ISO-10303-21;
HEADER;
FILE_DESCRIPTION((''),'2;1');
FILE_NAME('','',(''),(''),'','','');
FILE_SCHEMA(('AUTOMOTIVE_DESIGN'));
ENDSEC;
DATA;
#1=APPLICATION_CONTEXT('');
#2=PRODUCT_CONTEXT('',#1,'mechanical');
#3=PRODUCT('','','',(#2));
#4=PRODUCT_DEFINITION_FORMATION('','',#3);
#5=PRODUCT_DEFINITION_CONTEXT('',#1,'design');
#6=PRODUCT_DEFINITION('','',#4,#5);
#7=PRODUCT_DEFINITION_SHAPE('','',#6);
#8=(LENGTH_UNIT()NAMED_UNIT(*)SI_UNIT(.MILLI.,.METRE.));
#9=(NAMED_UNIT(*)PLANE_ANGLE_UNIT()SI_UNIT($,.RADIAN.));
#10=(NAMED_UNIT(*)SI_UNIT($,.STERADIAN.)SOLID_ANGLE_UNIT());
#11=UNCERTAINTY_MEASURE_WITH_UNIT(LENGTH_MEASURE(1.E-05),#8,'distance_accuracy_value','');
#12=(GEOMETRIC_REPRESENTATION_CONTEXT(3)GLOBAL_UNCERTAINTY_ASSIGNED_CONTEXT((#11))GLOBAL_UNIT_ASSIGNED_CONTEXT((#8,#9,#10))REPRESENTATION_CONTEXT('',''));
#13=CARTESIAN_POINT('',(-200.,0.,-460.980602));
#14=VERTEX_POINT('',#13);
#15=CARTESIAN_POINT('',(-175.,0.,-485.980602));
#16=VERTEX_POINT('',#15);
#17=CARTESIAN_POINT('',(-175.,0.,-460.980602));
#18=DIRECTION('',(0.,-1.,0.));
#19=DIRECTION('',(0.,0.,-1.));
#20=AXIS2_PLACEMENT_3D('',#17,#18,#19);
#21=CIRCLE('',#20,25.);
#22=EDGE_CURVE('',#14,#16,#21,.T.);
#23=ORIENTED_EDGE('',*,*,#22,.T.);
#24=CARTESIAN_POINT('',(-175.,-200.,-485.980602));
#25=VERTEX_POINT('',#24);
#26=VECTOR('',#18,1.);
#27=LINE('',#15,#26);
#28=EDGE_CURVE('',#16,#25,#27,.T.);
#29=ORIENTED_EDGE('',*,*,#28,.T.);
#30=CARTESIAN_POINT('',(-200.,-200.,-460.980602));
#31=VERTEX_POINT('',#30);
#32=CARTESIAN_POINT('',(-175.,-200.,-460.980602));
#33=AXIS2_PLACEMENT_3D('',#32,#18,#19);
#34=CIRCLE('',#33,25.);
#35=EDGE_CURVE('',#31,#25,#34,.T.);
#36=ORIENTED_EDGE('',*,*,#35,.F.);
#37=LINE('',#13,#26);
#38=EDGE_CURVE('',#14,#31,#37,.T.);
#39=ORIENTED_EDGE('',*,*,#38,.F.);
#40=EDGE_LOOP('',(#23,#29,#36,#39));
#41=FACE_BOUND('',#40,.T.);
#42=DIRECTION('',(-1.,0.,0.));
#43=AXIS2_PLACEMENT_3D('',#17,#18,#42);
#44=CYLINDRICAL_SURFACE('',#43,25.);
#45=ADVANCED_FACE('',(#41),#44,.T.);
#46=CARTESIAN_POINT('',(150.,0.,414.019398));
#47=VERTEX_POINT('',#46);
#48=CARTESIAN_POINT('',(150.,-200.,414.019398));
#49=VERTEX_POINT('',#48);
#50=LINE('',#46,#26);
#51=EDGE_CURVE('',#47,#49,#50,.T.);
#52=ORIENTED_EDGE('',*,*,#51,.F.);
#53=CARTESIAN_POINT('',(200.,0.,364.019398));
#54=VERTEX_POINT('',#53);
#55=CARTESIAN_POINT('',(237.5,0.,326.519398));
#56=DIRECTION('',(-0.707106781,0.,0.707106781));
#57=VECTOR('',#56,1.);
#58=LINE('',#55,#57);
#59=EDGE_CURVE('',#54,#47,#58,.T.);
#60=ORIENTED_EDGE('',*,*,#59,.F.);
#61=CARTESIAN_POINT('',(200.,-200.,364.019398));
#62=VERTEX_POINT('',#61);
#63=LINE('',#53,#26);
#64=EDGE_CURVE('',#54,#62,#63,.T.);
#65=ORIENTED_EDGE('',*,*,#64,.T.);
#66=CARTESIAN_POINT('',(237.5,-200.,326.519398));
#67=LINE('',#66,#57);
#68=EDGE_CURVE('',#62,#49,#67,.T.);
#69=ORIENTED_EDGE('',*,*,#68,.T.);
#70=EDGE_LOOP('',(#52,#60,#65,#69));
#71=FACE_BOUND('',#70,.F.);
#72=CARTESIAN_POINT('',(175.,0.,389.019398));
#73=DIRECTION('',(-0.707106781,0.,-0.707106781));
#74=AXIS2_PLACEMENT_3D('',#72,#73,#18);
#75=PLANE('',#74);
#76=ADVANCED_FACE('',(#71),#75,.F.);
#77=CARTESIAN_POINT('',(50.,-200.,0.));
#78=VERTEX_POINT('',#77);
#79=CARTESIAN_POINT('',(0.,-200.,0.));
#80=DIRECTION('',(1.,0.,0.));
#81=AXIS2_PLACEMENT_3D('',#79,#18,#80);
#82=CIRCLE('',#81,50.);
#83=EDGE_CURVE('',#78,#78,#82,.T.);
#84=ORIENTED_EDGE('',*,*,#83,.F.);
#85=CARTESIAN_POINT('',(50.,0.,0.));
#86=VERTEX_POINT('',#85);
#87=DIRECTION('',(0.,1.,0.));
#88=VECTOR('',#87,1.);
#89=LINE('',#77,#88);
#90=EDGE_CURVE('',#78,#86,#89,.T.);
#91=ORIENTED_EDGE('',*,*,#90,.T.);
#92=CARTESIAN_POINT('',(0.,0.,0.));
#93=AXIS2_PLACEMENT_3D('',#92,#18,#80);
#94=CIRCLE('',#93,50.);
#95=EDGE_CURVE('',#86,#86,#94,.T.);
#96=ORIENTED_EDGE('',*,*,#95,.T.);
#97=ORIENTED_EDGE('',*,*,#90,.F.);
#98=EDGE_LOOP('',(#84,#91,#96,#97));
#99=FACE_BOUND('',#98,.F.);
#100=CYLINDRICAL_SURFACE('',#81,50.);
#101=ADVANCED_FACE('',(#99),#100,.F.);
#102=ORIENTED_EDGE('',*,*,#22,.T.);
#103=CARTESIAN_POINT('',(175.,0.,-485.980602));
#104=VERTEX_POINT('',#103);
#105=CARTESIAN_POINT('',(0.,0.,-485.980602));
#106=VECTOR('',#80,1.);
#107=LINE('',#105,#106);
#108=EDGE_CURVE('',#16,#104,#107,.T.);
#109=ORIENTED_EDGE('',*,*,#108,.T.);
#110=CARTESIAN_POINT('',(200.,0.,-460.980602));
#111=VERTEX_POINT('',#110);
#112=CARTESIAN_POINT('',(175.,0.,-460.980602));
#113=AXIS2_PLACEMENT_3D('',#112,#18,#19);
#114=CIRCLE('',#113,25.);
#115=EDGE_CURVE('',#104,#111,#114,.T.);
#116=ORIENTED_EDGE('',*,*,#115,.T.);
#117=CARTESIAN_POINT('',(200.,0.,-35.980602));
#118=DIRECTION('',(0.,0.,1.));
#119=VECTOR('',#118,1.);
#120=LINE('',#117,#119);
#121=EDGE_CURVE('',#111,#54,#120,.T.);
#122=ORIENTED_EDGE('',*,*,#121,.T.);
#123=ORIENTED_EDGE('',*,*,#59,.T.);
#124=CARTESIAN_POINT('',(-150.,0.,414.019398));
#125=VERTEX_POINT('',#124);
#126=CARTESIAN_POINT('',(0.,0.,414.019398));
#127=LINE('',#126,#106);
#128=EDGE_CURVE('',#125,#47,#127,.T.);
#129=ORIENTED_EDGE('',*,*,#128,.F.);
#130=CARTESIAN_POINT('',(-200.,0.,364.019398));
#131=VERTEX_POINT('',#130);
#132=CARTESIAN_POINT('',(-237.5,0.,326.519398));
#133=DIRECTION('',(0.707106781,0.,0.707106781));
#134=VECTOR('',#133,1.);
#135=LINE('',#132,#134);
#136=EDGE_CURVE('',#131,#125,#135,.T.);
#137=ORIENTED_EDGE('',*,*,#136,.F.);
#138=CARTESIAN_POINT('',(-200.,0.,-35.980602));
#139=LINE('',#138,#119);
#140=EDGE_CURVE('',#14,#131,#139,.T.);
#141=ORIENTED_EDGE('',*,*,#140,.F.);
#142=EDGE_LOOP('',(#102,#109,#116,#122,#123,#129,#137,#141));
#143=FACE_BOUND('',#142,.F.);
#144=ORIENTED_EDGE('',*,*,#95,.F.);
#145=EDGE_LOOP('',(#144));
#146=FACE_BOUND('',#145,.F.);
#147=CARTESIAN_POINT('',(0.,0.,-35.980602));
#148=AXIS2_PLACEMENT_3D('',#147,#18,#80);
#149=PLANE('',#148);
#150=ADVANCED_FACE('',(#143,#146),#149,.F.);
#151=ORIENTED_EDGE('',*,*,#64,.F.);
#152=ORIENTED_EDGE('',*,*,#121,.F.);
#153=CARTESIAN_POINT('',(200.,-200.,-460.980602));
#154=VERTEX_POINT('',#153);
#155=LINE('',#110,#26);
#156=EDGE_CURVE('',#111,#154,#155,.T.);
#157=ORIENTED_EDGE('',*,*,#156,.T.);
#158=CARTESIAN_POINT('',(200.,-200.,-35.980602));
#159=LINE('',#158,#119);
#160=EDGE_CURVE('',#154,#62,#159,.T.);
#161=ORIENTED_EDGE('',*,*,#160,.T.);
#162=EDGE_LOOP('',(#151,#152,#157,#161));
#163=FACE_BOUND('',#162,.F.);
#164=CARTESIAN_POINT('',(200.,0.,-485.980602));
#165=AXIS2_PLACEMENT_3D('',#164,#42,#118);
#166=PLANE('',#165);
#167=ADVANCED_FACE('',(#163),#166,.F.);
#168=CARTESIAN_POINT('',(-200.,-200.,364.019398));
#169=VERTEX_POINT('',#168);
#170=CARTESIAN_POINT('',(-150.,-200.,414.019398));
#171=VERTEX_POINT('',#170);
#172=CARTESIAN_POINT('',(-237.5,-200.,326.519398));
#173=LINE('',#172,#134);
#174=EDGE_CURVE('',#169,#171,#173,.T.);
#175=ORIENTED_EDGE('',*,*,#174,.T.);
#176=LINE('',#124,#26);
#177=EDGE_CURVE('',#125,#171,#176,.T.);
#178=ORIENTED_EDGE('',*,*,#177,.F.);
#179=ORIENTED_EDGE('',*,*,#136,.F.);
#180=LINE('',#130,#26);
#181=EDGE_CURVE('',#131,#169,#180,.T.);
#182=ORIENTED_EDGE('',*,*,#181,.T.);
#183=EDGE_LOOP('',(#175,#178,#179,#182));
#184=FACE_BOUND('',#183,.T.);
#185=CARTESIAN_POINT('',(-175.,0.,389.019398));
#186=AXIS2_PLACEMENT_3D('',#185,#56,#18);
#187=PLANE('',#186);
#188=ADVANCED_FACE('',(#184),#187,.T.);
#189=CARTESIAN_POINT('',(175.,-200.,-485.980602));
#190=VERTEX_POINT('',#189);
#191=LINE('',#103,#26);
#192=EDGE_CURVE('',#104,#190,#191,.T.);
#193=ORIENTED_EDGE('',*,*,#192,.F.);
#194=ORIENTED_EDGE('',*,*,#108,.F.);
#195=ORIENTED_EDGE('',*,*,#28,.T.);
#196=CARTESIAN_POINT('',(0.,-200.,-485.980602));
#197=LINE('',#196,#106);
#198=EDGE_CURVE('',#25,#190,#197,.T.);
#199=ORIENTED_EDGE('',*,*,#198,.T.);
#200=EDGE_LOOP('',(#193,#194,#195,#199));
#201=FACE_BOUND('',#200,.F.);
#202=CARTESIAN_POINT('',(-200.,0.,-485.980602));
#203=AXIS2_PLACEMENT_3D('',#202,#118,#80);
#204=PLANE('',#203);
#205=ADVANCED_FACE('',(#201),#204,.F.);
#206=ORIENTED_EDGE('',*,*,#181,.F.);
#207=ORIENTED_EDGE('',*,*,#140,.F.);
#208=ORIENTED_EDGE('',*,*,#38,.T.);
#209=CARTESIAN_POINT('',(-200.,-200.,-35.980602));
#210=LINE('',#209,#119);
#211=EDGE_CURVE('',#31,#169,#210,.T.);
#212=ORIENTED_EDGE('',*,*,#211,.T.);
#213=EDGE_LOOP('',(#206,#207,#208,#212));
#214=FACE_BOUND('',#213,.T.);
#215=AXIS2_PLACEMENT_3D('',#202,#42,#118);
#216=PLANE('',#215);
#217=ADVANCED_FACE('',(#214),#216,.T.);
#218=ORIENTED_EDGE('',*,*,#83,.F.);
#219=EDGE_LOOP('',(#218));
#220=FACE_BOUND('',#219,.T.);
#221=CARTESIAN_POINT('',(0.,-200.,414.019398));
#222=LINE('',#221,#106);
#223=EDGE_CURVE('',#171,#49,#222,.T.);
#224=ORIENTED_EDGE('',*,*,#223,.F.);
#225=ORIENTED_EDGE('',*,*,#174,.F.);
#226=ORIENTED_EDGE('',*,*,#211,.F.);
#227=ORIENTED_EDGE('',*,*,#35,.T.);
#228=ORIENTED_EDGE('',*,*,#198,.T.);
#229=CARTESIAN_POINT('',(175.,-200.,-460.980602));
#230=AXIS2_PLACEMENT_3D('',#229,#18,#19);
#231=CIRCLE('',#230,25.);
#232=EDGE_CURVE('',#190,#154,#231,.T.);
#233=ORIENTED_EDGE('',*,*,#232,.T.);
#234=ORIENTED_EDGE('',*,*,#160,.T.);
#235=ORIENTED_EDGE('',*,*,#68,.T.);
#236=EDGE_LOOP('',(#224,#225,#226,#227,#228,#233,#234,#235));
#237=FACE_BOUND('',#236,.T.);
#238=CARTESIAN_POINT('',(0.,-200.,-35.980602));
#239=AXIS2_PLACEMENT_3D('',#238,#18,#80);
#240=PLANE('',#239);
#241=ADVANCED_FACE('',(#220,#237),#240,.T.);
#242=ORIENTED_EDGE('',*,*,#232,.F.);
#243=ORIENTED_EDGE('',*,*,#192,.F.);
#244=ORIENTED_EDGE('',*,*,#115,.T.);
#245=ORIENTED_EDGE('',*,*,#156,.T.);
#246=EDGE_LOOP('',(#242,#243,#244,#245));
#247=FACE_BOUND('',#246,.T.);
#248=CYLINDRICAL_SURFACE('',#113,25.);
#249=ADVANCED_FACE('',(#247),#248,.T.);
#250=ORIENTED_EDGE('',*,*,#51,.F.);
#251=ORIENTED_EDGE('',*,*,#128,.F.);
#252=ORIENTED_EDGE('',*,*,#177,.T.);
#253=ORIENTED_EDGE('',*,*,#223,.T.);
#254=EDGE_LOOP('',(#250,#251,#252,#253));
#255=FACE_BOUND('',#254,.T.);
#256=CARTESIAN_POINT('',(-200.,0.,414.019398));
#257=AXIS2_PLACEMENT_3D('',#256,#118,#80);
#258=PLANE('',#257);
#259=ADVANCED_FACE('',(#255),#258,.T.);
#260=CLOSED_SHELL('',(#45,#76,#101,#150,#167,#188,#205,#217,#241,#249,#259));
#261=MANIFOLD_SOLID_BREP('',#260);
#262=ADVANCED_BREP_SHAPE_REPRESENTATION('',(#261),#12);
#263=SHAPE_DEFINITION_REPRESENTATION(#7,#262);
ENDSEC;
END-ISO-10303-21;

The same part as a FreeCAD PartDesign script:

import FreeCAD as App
import Part
import Sketcher
from FreeCAD import Vector


def edges_at(feature, points):
    """Names of the edges that pass closest to the given points."""
    edges = feature.Shape.Edges
    near = lambda p: min(range(len(edges)), key=lambda i: edges[i].distToShape(Part.Vertex(*p))[0])
    return sorted({f"Edge{near(p) + 1}" for p in points})


def add_polygon(sketch, points):
    """Adds a closed chain of lines whose ends are joined by coincident constraints."""
    first, n = sketch.GeometryCount, len(points)
    for a, b in zip(points, points[1:] + points[:1]):
        sketch.addGeometry(Part.LineSegment(App.Vector(*a, 0), App.Vector(*b, 0)), False)
    for i in range(n):
        sketch.addConstraint(Sketcher.Constraint("Coincident", first + i, 2, first + (i + 1) % n, 1))

doc = App.newDocument("Part")
params = doc.addObject("Spreadsheet::Sheet", "Params")
for row, (alias, value) in enumerate([
    ("sketch1_width", "400 mm"),
    ("sketch1_height", "900 mm"),
    ("pad1_length", "200 mm"),
    ("chamfer_size", "50 mm"),
    ("fillet_radius", "25 mm"),
    ("sketch2_diameter", "100 mm"),
], start=1):
    params.set(f"A{row}", alias)
    params.set(f"B{row}", "=" + value)
    params.setAlias(f"B{row}", alias)

body = doc.addObject("PartDesign::Body", "Body")

# Sketch on XZ plane
sketch1 = body.newObject("Sketcher::SketchObject", "Sketch")
sketch1.AttachmentSupport = (doc.getObject("XZ_Plane"), [""])
sketch1.MapMode = "FlatFace"
add_polygon(sketch1, [(-200, 414), (-200, -486), (200, -486), (200, 414)])  # lines 0-3
sketch1.addConstraint(Sketcher.Constraint("Vertical", 0))
sketch1.addConstraint(Sketcher.Constraint("Horizontal", 1))
sketch1.addConstraint(Sketcher.Constraint("Vertical", 2))
sketch1.addConstraint(Sketcher.Constraint("Horizontal", 3))
sketch1.addConstraint(Sketcher.Constraint("DistanceX", 1, 1, 1, 2, 400.0))
sketch1.addConstraint(Sketcher.Constraint("DistanceY", 0, 2, 0, 1, 900.0))
sketch1.addConstraint(Sketcher.Constraint("DistanceX", 0, 2, -1, 1, 200.0))
sketch1.addConstraint(Sketcher.Constraint("DistanceY", 0, 2, -1, 1, 485.980602))
sketch1.setExpression("Constraints[8]", "Params.sketch1_width")
sketch1.setExpression("Constraints[9]", "Params.sketch1_height")
pad1 = body.newObject("PartDesign::Pad", "Pad")
pad1.Profile = sketch1
pad1.setExpression("Length", "Params.pad1_length")
doc.recompute()

chamfer = body.newObject("PartDesign::Chamfer", "Chamfer")
chamfer.Base = (pad1, edges_at(pad1, [(-200, -100, 414.019), (200, -100, 414.019)]))
chamfer.setExpression("Size", "Params.chamfer_size")
doc.recompute()

fillet = body.newObject("PartDesign::Fillet", "Fillet")
fillet.Base = (chamfer, edges_at(chamfer, [(-200, -100, -485.981), (200, -100, -485.981)]))
fillet.setExpression("Radius", "Params.fillet_radius")

# Sketch on XZ plane
sketch2 = body.newObject("Sketcher::SketchObject", "Sketch001")
sketch2.AttachmentSupport = (doc.getObject("XZ_Plane"), [""])
sketch2.MapMode = "FlatFace"
sketch2.AttachmentOffset = App.Placement(Vector(0, 0, 200), App.Rotation())
sketch2.addGeometry(Part.Circle(Vector(0, 0, 0), Vector(0, 0, 1), 50), False)
sketch2.addConstraint(Sketcher.Constraint("Coincident", 0, 3, -1, 1))
sketch2.addConstraint(Sketcher.Constraint("Diameter", 0, 100.0))
sketch2.setExpression("Constraints[1]", "Params.sketch2_diameter")
pocket1 = body.newObject("PartDesign::Pocket", "Pocket")
pocket1.Profile = sketch2
pocket1.Type = "ThroughAll"

doc.recompute()
